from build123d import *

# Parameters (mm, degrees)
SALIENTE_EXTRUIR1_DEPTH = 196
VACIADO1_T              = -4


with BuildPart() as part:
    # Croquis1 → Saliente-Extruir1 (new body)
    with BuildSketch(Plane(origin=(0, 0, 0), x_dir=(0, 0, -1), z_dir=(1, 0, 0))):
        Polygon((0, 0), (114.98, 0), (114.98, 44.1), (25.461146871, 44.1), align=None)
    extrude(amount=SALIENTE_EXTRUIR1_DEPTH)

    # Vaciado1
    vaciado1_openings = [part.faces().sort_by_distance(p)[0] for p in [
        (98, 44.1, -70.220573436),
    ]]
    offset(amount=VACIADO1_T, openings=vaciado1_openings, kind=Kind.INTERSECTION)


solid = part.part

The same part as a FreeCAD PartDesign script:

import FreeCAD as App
import Part
import Sketcher
from FreeCAD import Vector
Q = App.Units.Quantity


def faces_at(feature, points):
    """Names of the faces that lie closest to the given points."""
    faces = feature.Shape.Faces
    near = lambda p: min(range(len(faces)), key=lambda i: faces[i].distToShape(Part.Vertex(*p))[0])
    return sorted({f"Face{near(p) + 1}" for p in points})

doc = App.newDocument("Part")
body = doc.addObject("PartDesign::Body", "Body")

sketch1 = body.newObject("Sketcher::SketchObject", "Sketch")
sketch1.AttachmentSupport = (doc.getObject("YZ_Plane"), [""])
sketch1.MapMode = "FlatFace"
sketch1.addGeometry(Part.LineSegment(Vector(0, 0, 0), Vector(0, -114.98, 0)), False)
sketch1.addGeometry(Part.LineSegment(Vector(0, -114.98, 0), Vector(44.1, -114.98, 0)), False)
sketch1.addGeometry(Part.LineSegment(Vector(44.1, -114.98, 0), Vector(44.1, -25.461147, 0)), False)
sketch1.addGeometry(Part.LineSegment(Vector(44.1, -25.461147, 0), Vector(0, 0, 0)), False)
sketch1.addConstraint(Sketcher.Constraint("Coincident", 0, 2, 1, 1))
sketch1.addConstraint(Sketcher.Constraint("Coincident", 1, 2, 2, 1))
sketch1.addConstraint(Sketcher.Constraint("Coincident", 2, 2, 3, 1))
sketch1.addConstraint(Sketcher.Constraint("Coincident", 3, 2, 0, 1))
sketch1.addConstraint(Sketcher.Constraint("Vertical", 0))
sketch1.addConstraint(Sketcher.Constraint("Horizontal", 1))
sketch1.addConstraint(Sketcher.Constraint("Vertical", 2))
sketch1.addConstraint(Sketcher.Constraint("Coincident", 3, 2, -1, 1))
sketch1.addConstraint(Sketcher.Constraint("Angle", 3, Q("150 deg")))
sketch1.addConstraint(Sketcher.Constraint("DistanceX", 1, 1, 1, 2, 44.1))
sketch1.addConstraint(Sketcher.Constraint("DistanceY", 0, 2, 0, 1, 114.98))
pad1 = body.newObject("PartDesign::Pad", "Pad")
pad1.Profile = sketch1
pad1.Length = 196
doc.recompute()

thickness = body.newObject("PartDesign::Thickness", "Thickness")
thickness.Base = (pad1, faces_at(pad1, [(98, 44.1, -70.221)]))
thickness.Value = 4
thickness.Reversed = True
thickness.Join = "Intersection"

doc.recompute()
